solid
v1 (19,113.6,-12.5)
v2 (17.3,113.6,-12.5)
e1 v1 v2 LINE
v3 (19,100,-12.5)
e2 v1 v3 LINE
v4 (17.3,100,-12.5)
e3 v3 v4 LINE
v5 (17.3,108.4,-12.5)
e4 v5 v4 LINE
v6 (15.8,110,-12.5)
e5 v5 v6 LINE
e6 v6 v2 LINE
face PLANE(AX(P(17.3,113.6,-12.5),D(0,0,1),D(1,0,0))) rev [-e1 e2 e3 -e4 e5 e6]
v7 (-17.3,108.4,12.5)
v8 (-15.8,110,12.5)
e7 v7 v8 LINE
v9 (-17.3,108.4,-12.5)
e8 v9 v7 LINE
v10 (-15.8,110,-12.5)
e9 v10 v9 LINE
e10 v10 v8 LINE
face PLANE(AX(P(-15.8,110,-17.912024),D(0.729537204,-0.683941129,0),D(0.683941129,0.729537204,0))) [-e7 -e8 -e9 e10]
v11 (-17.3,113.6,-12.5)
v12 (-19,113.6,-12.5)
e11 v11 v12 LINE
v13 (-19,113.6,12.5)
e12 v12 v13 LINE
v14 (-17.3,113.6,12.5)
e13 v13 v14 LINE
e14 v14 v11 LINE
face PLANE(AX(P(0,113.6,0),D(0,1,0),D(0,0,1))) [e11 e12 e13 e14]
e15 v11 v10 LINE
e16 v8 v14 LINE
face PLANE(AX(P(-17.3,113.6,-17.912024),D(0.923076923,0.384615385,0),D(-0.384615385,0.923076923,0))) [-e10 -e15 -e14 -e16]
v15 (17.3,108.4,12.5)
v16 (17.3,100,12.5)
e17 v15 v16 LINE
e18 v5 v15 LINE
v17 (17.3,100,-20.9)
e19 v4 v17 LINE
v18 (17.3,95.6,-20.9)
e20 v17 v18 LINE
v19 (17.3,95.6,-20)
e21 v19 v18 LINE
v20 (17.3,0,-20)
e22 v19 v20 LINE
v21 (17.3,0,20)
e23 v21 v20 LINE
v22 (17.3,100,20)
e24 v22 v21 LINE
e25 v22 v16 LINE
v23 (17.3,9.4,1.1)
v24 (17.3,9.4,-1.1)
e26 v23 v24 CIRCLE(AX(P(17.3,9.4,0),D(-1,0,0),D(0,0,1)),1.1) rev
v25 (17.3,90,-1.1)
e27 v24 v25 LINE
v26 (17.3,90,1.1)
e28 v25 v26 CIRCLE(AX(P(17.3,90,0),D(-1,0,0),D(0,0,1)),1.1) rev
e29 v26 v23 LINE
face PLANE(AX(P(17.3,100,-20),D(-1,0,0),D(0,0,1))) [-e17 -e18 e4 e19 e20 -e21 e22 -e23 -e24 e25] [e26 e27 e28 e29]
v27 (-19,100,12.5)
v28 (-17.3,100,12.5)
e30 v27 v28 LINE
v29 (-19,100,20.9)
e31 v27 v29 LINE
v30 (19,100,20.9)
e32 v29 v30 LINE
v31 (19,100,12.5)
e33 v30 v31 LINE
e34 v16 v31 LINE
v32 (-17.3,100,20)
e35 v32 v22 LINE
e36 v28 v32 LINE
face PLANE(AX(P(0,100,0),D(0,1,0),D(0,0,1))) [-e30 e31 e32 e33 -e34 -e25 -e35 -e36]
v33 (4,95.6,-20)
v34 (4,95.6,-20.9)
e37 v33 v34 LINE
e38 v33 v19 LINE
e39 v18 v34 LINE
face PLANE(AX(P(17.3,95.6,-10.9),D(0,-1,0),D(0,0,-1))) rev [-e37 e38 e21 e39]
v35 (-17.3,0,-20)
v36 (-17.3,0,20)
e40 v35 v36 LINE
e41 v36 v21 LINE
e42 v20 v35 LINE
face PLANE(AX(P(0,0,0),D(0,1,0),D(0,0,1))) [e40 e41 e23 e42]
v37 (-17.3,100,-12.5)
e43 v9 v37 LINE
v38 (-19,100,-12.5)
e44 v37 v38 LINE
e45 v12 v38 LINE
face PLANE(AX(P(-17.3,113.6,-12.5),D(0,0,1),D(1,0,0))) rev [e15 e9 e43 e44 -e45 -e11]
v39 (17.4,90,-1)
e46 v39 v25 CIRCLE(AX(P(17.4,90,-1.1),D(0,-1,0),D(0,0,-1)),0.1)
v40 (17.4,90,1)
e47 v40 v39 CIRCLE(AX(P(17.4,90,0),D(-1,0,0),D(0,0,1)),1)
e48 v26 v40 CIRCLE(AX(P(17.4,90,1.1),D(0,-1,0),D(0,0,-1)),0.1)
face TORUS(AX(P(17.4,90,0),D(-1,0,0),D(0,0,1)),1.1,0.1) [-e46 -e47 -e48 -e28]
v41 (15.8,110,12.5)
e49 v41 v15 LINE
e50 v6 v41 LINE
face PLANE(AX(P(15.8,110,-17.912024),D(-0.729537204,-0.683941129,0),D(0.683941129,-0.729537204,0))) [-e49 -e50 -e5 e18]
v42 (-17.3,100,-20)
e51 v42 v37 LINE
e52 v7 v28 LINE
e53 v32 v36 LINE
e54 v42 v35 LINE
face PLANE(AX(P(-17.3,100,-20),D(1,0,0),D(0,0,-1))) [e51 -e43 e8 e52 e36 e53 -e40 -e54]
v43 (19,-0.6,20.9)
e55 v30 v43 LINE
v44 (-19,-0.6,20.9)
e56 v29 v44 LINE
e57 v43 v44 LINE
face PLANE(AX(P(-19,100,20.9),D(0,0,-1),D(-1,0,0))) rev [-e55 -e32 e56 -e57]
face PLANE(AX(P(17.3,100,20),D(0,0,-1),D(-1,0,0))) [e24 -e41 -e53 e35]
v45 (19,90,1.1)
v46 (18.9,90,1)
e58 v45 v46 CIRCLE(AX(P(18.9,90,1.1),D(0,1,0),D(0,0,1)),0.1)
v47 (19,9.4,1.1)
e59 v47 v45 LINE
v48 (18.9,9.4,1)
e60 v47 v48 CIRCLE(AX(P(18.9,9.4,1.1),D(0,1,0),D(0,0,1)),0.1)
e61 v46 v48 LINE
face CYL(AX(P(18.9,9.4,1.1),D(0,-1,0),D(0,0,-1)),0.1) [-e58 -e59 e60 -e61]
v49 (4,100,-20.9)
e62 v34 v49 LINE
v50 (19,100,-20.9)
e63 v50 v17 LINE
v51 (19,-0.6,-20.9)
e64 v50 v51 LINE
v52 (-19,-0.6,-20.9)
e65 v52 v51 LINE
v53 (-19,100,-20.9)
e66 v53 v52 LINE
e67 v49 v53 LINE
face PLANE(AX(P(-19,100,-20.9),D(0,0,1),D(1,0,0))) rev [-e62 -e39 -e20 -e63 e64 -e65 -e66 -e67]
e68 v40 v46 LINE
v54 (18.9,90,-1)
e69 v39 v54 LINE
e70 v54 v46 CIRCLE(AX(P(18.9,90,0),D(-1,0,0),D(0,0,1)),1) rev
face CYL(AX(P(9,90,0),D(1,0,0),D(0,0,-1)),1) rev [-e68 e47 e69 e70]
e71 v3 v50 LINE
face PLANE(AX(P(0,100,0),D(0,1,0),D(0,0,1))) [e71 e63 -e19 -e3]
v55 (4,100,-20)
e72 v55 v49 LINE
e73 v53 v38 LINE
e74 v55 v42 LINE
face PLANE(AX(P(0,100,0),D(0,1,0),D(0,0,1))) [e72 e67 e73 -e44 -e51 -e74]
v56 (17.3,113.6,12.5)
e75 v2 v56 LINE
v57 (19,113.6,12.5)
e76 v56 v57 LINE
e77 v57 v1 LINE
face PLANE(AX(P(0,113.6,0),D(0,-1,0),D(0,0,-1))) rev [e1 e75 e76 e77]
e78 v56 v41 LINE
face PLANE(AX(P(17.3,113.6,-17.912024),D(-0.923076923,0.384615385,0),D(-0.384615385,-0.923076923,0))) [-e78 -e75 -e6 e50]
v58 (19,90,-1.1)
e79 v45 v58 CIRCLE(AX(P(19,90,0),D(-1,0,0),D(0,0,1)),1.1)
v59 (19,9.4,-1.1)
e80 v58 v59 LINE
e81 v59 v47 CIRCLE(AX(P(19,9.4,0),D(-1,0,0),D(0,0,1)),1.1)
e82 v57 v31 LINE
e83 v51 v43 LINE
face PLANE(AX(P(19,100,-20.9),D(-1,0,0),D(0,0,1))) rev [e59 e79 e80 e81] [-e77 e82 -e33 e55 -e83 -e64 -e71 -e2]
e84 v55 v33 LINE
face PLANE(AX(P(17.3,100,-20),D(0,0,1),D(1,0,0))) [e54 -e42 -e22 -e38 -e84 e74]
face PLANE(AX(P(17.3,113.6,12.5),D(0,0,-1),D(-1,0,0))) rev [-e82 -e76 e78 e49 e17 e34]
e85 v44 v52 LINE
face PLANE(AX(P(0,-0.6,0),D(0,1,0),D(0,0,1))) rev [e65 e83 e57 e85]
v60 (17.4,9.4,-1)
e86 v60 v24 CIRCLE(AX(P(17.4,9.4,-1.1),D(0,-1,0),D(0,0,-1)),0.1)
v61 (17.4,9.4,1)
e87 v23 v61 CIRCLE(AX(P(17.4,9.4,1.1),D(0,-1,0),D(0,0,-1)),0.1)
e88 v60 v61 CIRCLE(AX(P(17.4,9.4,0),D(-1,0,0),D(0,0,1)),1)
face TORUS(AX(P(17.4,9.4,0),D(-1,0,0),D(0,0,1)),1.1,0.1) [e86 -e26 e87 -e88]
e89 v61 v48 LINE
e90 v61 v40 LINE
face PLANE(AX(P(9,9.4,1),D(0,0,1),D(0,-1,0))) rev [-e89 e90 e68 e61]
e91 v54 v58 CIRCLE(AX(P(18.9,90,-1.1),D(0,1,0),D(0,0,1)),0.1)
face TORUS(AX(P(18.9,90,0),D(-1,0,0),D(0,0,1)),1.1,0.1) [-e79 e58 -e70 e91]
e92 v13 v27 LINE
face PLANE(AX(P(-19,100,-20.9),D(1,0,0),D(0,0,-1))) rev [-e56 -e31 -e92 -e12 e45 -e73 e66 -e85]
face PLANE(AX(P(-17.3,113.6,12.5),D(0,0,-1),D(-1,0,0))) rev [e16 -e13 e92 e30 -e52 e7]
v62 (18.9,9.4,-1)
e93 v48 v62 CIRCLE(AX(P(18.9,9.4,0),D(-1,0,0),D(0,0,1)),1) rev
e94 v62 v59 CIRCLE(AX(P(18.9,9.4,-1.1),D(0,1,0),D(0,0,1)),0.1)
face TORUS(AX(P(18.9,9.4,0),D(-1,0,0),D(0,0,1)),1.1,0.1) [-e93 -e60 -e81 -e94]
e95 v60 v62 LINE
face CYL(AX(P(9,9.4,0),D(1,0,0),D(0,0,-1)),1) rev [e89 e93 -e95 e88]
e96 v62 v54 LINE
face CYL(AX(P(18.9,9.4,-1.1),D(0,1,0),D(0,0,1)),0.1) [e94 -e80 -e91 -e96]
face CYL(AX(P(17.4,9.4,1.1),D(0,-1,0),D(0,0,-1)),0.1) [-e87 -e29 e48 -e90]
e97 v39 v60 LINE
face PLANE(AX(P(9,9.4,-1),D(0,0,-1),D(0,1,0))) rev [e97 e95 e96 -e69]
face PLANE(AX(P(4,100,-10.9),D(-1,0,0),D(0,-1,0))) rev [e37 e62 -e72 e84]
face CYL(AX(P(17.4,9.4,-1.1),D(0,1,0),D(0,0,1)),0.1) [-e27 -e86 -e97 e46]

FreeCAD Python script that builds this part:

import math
import FreeCAD as App
import Part
import Sketcher


def edges_at(feature, points):
    """Names of the edges that pass closest to the given points."""
    edges = feature.Shape.Edges
    near = lambda p: min(range(len(edges)), key=lambda i: edges[i].distToShape(Part.Vertex(*p))[0])
    return sorted({f"Edge{near(p) + 1}" for p in points})

doc = App.newDocument("Part")
body = doc.addObject("PartDesign::Body", "Body")

# Sketch on XZ plane
sketch1 = body.newObject("Sketcher::SketchObject", "Sketch")
sketch1.AttachmentSupport = (doc.getObject("XZ_Plane"), [""])
sketch1.MapMode = "FlatFace"
sketch1.addGeometry([
    Part.LineSegment(App.Vector(-19, -21, 0), App.Vector(-19, 21, 0)),  # 0
    Part.LineSegment(App.Vector(-19, 21, 0), App.Vector(19, 21, 0)),  # 1
    Part.LineSegment(App.Vector(19, 21, 0), App.Vector(19, -21, 0)),  # 2
    Part.LineSegment(App.Vector(19, -21, 0), App.Vector(-19, -21, 0)),  # 3
    Part.LineSegment(App.Vector(17, 20, 0), App.Vector(-17, 20, 0)),  # 4
    Part.LineSegment(App.Vector(-17, 20, 0), App.Vector(-17, -20, 0)),  # 5
    Part.LineSegment(App.Vector(-17, -20, 0), App.Vector(17, -20, 0)),  # 6
    Part.LineSegment(App.Vector(17, -20, 0), App.Vector(17, 20, 0)),  # 7
], False)
sketch1.addConstraint([
    Sketcher.Constraint("Coincident", 0, 2, 1, 1),
    Sketcher.Constraint("Coincident", 1, 2, 2, 1),
    Sketcher.Constraint("Coincident", 2, 2, 3, 1),
    Sketcher.Constraint("Coincident", 3, 2, 0, 1),
    Sketcher.Constraint("Coincident", 4, 2, 5, 1),
    Sketcher.Constraint("Coincident", 5, 2, 6, 1),
    Sketcher.Constraint("Coincident", 6, 2, 7, 1),
    Sketcher.Constraint("Coincident", 7, 2, 4, 1),
    Sketcher.Constraint("Vertical", 0),
    Sketcher.Constraint("Horizontal", 1),
    Sketcher.Constraint("Vertical", 2),
    Sketcher.Constraint("Horizontal", 3),
    Sketcher.Constraint("Horizontal", 4),
    Sketcher.Constraint("Vertical", 5),
    Sketcher.Constraint("Horizontal", 6),
    Sketcher.Constraint("Vertical", 7),
    Sketcher.Constraint("Symmetric", 0, 2, 2, 2, -1, 1),
    Sketcher.Constraint("Symmetric", 4, 2, 6, 2, -1, 1),
    Sketcher.Constraint("DistanceX", 1, 1, 1, 2, 38.0),
    Sketcher.Constraint("DistanceY", 5, 2, 5, 1, 40.0),
    Sketcher.Constraint("DistanceX", 4, 2, 4, 1, 34.6),
    Sketcher.Constraint("DistanceY", 0, 1, 0, 2, 41.8),
])
pad1 = body.newObject("PartDesign::Pad", "Pad")
pad1.Profile = sketch1
pad1.Length = 100
pad1.Reversed = True

# Sketch on XZ plane
sketch2 = body.newObject("Sketcher::SketchObject", "Sketch001")
sketch2.AttachmentSupport = (doc.getObject("XZ_Plane"), [""])
sketch2.MapMode = "FlatFace"
sketch2.AttachmentOffset = App.Placement(App.Vector(0, 0, -100), App.Rotation())
sketch2.addGeometry([
    Part.LineSegment(App.Vector(17.3, -12.5, 0), App.Vector(17.3, 12.5, 0)),  # 0
    Part.LineSegment(App.Vector(17.3, 12.5, 0), App.Vector(19, 12.5, 0)),  # 1
    Part.LineSegment(App.Vector(19, 12.5, 0), App.Vector(19, -12.5, 0)),  # 2
    Part.LineSegment(App.Vector(19, -12.5, 0), App.Vector(17.3, -12.5, 0)),  # 3
    Part.LineSegment(App.Vector(-19, -12.5, 0), App.Vector(-19, 12.5, 0)),  # 4
    Part.LineSegment(App.Vector(-19, 12.5, 0), App.Vector(-17.3, 12.5, 0)),  # 5
    Part.LineSegment(App.Vector(-17.3, 12.5, 0), App.Vector(-17.3, -12.5, 0)),  # 6
    Part.LineSegment(App.Vector(-17.3, -12.5, 0), App.Vector(-19, -12.5, 0)),  # 7
], False)
sketch2.addConstraint([
    Sketcher.Constraint("Coincident", 0, 2, 1, 1),
    Sketcher.Constraint("Coincident", 1, 2, 2, 1),
    Sketcher.Constraint("Coincident", 2, 2, 3, 1),
    Sketcher.Constraint("Coincident", 3, 2, 0, 1),
    Sketcher.Constraint("Coincident", 4, 2, 5, 1),
    Sketcher.Constraint("Coincident", 5, 2, 6, 1),
    Sketcher.Constraint("Coincident", 6, 2, 7, 1),
    Sketcher.Constraint("Coincident", 7, 2, 4, 1),
    Sketcher.Constraint("Vertical", 0),
    Sketcher.Constraint("Horizontal", 1),
    Sketcher.Constraint("Vertical", 2),
    Sketcher.Constraint("Horizontal", 3),
    Sketcher.Constraint("Vertical", 4),
    Sketcher.Constraint("Horizontal", 5),
    Sketcher.Constraint("Vertical", 6),
    Sketcher.Constraint("Horizontal", 7),
    Sketcher.Constraint("Symmetric", 2, 2, 4, 2, -1, 1),
    Sketcher.Constraint("Symmetric", 0, 2, 6, 2, -1, 1),
    Sketcher.Constraint("Horizontal", 1, 2, 4, 2),
    Sketcher.Constraint("DistanceY", 0, 1, 0, 2, 25.0),
    Sketcher.Constraint("DistanceX", 1, 1, 1, 2, 1.7),
    Sketcher.Constraint("DistanceX", -1, 1, 1, 2, 19.0),
])
pad2 = body.newObject("PartDesign::Pad", "Pad001")
pad2.Profile = sketch2
pad2.Length = 13.6
pad2.Reversed = True

# Sketch on XY plane
sketch3 = body.newObject("Sketcher::SketchObject", "Sketch002")
sketch3.AttachmentSupport = (doc.getObject("XY_Plane"), [""])
sketch3.MapMode = "FlatFace"
sketch3.AttachmentOffset = App.Placement(App.Vector(0, 0, 12.5), App.Rotation())
sketch3.addGeometry([
    Part.LineSegment(App.Vector(-17.3, 108.4, 0), App.Vector(-15.8, 110, 0)),  # 0
    Part.LineSegment(App.Vector(-15.8, 110, 0), App.Vector(-17.3, 113.6, 0)),  # 1
    Part.LineSegment(App.Vector(-17.3, 113.6, 0), App.Vector(-17.3, 108.4, 0)),  # 2
    Part.LineSegment(App.Vector(17.3, 108.4, 0), App.Vector(17.3, 113.6, 0)),  # 3
    Part.LineSegment(App.Vector(17.3, 113.6, 0), App.Vector(15.8, 110, 0)),  # 4
    Part.LineSegment(App.Vector(15.8, 110, 0), App.Vector(17.3, 108.4, 0)),  # 5
], False)
sketch3.addConstraint([
    Sketcher.Constraint("Coincident", 0, 2, 1, 1),
    Sketcher.Constraint("Coincident", 1, 2, 2, 1),
    Sketcher.Constraint("Coincident", 2, 2, 0, 1),
    Sketcher.Constraint("Coincident", 3, 2, 4, 1),
    Sketcher.Constraint("Coincident", 4, 2, 5, 1),
    Sketcher.Constraint("Coincident", 5, 2, 3, 1),
    Sketcher.Constraint("Vertical", 2),
    Sketcher.Constraint("Vertical", 3),
    Sketcher.Constraint("Symmetric", 1, 2, 3, 2, -2),
    Sketcher.Constraint("Symmetric", 0, 2, 4, 2, -2),
    Sketcher.Constraint("Horizontal", 2, 2, 5, 2),
    Sketcher.Constraint("DistanceY", 2, 2, 2, 1, 5.2),
    Sketcher.Constraint("DistanceY", -1, 1, 0, 2, 110.0),
    Sketcher.Constraint("Distance", 1, 3.9),
    Sketcher.Constraint("DistanceX", 0, 2, -1, 1, 15.8),
    Sketcher.Constraint("DistanceX", 1, 2, -1, 1, 17.3),
])
pad3 = body.newObject("PartDesign::Pad", "Pad002")
pad3.Profile = sketch3
pad3.Length = 25
pad3.Reversed = True

# Sketch on XZ plane
sketch4 = body.newObject("Sketcher::SketchObject", "Sketch003")
sketch4.AttachmentSupport = (doc.getObject("XZ_Plane"), [""])
sketch4.MapMode = "FlatFace"
sketch4.addGeometry([
    Part.LineSegment(App.Vector(-19, 21, 0), App.Vector(-19, -21, 0)),
    Part.LineSegment(App.Vector(-19, -21, 0), App.Vector(19, -21, 0)),
    Part.LineSegment(App.Vector(19, -21, 0), App.Vector(19, 21, 0)),
    Part.LineSegment(App.Vector(19, 21, 0), App.Vector(-19, 21, 0)),
], False)
sketch4.addConstraint([
    Sketcher.Constraint("Coincident", 0, 2, 1, 1),
    Sketcher.Constraint("Coincident", 1, 2, 2, 1),
    Sketcher.Constraint("Coincident", 2, 2, 3, 1),
    Sketcher.Constraint("Coincident", 3, 2, 0, 1),
    Sketcher.Constraint("Vertical", 0),
    Sketcher.Constraint("Horizontal", 1),
    Sketcher.Constraint("Vertical", 2),
    Sketcher.Constraint("Horizontal", 3),
    Sketcher.Constraint("Symmetric", 0, 2, 2, 2, -1, 1),
    Sketcher.Constraint("DistanceX", 1, 1, 1, 2, 38.0),
    Sketcher.Constraint("DistanceY", 0, 2, 0, 1, 41.8),
])
pad4 = body.newObject("PartDesign::Pad", "Pad003")
pad4.Profile = sketch4
pad4.Length = 0.6

# Sketch on XY plane
sketch5 = body.newObject("Sketcher::SketchObject", "Sketch004")
sketch5.AttachmentSupport = (doc.getObject("XY_Plane"), [""])
sketch5.MapMode = "FlatFace"
sketch5.AttachmentOffset = App.Placement(App.Vector(0, 0, -20.9), App.Rotation())
sketch5.addGeometry([
    Part.LineSegment(App.Vector(17.3, 100, 0), App.Vector(17.3, 95.6, 0)),
    Part.LineSegment(App.Vector(17.3, 95.6, 0), App.Vector(4, 95.6, 0)),
    Part.LineSegment(App.Vector(4, 95.6, 0), App.Vector(4, 100, 0)),
    Part.LineSegment(App.Vector(4, 100, 0), App.Vector(17.3, 100, 0)),
], False)
sketch5.addConstraint([
    Sketcher.Constraint("Coincident", 0, 2, 1, 1),
    Sketcher.Constraint("Coincident", 1, 2, 2, 1),
    Sketcher.Constraint("Coincident", 2, 2, 3, 1),
    Sketcher.Constraint("Coincident", 3, 2, 0, 1),
    Sketcher.Constraint("Vertical", 0),
    Sketcher.Constraint("Horizontal", 1),
    Sketcher.Constraint("Vertical", 2),
    Sketcher.Constraint("Horizontal", 3),
    Sketcher.Constraint("DistanceX", 1, 2, 1, 1, 13.3),
    Sketcher.Constraint("DistanceY", 0, 2, 0, 1, 4.4),
    Sketcher.Constraint("DistanceX", -1, 1, 1, 2, 4.0),
    Sketcher.Constraint("DistanceY", -1, 1, 2, 2, 100.0),
])
pocket1 = body.newObject("PartDesign::Pocket", "Pocket")
pocket1.Profile = sketch5
pocket1.Length = 10
pocket1.Reversed = True

# Sketch on YZ plane
sketch6 = body.newObject("Sketcher::SketchObject", "Sketch005")
sketch6.AttachmentSupport = (doc.getObject("YZ_Plane"), [""])
sketch6.MapMode = "FlatFace"
sketch6.AttachmentOffset = App.Placement(App.Vector(0, 0, 19), App.Rotation())
sketch6.addGeometry([
    Part.LineSegment(App.Vector(90, 1, 0), App.Vector(9.4, 1, 0)),
    Part.ArcOfCircle(Part.Circle(App.Vector(9.4, 0, 0), App.Vector(0, 0, 1), 1), math.radians(90), math.radians(270)),
    Part.LineSegment(App.Vector(9.4, -1, 0), App.Vector(90, -1, 0)),
    Part.ArcOfCircle(Part.Circle(App.Vector(90, 0, 0), App.Vector(0, 0, 1), 1), math.radians(-90), math.radians(90)),
], False)
sketch6.addConstraint([
    Sketcher.Constraint("Tangent", 0, 2, 1, 1),
    Sketcher.Constraint("Tangent", 1, 2, 2, 1),
    Sketcher.Constraint("Tangent", 2, 2, 3, 1),
    Sketcher.Constraint("Tangent", 3, 2, 0, 1),
    Sketcher.Constraint("Horizontal", 0),
    Sketcher.Constraint("Horizontal", 2),
    Sketcher.Constraint("PointOnObject", 1, 3, -1),
    Sketcher.Constraint("Radius", 1, 1.0),
    Sketcher.Constraint("DistanceX", 0, 2, 0, 1, 80.6),
    Sketcher.Constraint("DistanceX", -1, 1, 3, 3, 90.0),
])
pocket2 = body.newObject("PartDesign::Pocket", "Pocket001")
pocket2.Profile = sketch6
pocket2.Length = 10
doc.recompute()

fillet = body.newObject("PartDesign::Fillet", "Fillet")
fillet.Base = (pocket2, edges_at(pocket2, [
    (17.3, 49.7, -1),
    (17.3, 91, 0),
    (17.3, 49.7, 1),
    (17.3, 8.4, 0),
    (19, 8.4, 0),
    (19, 49.7, -1),
    (19, 91, 0),
    (19, 49.7, 1),
]))
fillet.Radius = 0.1

doc.recompute()
